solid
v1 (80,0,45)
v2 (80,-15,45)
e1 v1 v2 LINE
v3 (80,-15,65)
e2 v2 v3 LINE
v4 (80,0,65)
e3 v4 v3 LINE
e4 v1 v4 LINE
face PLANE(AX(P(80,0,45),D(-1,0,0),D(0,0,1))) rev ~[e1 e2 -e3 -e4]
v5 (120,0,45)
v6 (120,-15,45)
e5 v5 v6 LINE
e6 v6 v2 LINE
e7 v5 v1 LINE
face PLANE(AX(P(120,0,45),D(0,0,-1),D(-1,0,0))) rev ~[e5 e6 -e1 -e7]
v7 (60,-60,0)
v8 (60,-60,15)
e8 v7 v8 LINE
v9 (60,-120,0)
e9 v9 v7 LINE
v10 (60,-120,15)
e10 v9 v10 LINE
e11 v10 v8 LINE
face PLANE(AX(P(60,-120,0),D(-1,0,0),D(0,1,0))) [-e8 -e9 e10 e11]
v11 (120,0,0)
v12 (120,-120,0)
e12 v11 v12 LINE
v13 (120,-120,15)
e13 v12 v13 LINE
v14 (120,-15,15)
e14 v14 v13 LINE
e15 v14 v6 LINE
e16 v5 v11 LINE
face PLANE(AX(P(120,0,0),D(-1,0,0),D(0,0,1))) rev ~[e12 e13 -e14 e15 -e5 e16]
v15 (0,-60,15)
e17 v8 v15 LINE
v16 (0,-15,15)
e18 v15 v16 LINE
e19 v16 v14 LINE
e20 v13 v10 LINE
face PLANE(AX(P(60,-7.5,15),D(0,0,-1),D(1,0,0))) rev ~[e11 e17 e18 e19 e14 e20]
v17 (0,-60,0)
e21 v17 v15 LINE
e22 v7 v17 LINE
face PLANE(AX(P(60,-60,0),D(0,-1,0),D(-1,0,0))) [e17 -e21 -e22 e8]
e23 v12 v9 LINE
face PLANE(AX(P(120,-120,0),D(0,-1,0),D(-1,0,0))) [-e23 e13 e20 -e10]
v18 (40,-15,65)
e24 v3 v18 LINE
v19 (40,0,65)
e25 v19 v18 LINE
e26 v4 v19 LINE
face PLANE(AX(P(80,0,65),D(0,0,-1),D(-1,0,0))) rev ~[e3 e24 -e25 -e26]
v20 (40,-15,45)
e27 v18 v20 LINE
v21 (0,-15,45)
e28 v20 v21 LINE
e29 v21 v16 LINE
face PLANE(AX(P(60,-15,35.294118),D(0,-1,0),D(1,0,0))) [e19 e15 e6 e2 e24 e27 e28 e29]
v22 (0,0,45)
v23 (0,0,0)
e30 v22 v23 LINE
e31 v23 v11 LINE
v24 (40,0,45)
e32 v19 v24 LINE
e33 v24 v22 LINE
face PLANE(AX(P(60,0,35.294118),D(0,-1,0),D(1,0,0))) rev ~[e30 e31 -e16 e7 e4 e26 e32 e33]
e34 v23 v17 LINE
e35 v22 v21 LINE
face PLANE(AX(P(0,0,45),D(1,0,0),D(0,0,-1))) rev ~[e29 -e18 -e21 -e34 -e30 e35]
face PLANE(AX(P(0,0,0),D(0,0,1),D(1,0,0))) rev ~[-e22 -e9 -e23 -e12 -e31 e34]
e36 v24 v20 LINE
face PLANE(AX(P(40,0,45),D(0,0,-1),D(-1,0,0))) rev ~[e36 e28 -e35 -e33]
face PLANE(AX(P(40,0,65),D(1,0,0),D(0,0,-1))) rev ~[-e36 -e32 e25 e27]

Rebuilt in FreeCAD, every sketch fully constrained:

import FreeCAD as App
import Part
import Sketcher
Q = App.Units.Quantity


def add_polygon(sketch, points):
    """Adds a closed chain of lines whose ends are joined by coincident constraints."""
    first, n = sketch.GeometryCount, len(points)
    for a, b in zip(points, points[1:] + points[:1]):
        sketch.addGeometry(Part.LineSegment(App.Vector(*a, 0), App.Vector(*b, 0)), False)
    for i in range(n):
        sketch.addConstraint(Sketcher.Constraint("Coincident", first + i, 2, first + (i + 1) % n, 1))

doc = App.newDocument("Part")
body = doc.addObject("PartDesign::Body", "Body")

sketch1 = body.newObject("Sketcher::SketchObject", "Sketch")
sketch1.AttachmentSupport = (doc.getObject("XZ_Plane"), [""])
sketch1.MapMode = "FlatFace"
add_polygon(sketch1, [(0, 45), (0, 0), (120, 0), (120, 45), (80, 45), (80, 65), (40, 65), (40, 45)])
sketch1.addConstraint(Sketcher.Constraint("Vertical", 0))
sketch1.addConstraint(Sketcher.Constraint("Horizontal", 1))
sketch1.addConstraint(Sketcher.Constraint("Vertical", 2))
sketch1.addConstraint(Sketcher.Constraint("Horizontal", 3))
sketch1.addConstraint(Sketcher.Constraint("Vertical", 4))
sketch1.addConstraint(Sketcher.Constraint("Horizontal", 5))
sketch1.addConstraint(Sketcher.Constraint("Vertical", 6))
sketch1.addConstraint(Sketcher.Constraint("Horizontal", 7))
sketch1.addConstraint(Sketcher.Constraint("Coincident", 0, 2, -1, 1))
sketch1.addConstraint(Sketcher.Constraint("Horizontal", 3, 2, 6, 2))
sketch1.addConstraint(Sketcher.Constraint("Equal", 3, 5))
sketch1.addConstraint(Sketcher.Constraint("Equal", 5, 7))
sketch1.addConstraint(Sketcher.Constraint("DistanceX", 1, 1, 1, 2, Q("120 mm")))
sketch1.addConstraint(Sketcher.Constraint("DistanceY", 0, 2, 0, 1, Q("45 mm")))
sketch1.addConstraint(Sketcher.Constraint("DistanceY", 4, 1, 4, 2, Q("20 mm")))
pad1 = body.newObject("PartDesign::Pad", "Pad")
pad1.Profile = sketch1
pad1.Length = 15

sketch2 = body.newObject("Sketcher::SketchObject", "Sketch001")
sketch2.AttachmentSupport = (doc.getObject("XY_Plane"), [""])
sketch2.MapMode = "FlatFace"
add_polygon(sketch2, [(0, 0), (120, 0), (120, -120), (60, -120), (60, -60), (0, -60)])
sketch2.addConstraint(Sketcher.Constraint("Horizontal", 0))
sketch2.addConstraint(Sketcher.Constraint("Vertical", 1))
sketch2.addConstraint(Sketcher.Constraint("Horizontal", 2))
sketch2.addConstraint(Sketcher.Constraint("Vertical", 3))
sketch2.addConstraint(Sketcher.Constraint("Horizontal", 4))
sketch2.addConstraint(Sketcher.Constraint("Vertical", 5))
sketch2.addConstraint(Sketcher.Constraint("Coincident", 5, 2, -1, 1))
sketch2.addConstraint(Sketcher.Constraint("Equal", 2, 4))
sketch2.addConstraint(Sketcher.Constraint("Equal", 0, 1))
sketch2.addConstraint(Sketcher.Constraint("Equal", 4, 3))
sketch2.addConstraint(Sketcher.Constraint("DistanceX", 0, 1, 0, 2, Q("120 mm")))
pad2 = body.newObject("PartDesign::Pad", "Pad001")
pad2.Profile = sketch2
pad2.Length = 15

doc.recompute()
